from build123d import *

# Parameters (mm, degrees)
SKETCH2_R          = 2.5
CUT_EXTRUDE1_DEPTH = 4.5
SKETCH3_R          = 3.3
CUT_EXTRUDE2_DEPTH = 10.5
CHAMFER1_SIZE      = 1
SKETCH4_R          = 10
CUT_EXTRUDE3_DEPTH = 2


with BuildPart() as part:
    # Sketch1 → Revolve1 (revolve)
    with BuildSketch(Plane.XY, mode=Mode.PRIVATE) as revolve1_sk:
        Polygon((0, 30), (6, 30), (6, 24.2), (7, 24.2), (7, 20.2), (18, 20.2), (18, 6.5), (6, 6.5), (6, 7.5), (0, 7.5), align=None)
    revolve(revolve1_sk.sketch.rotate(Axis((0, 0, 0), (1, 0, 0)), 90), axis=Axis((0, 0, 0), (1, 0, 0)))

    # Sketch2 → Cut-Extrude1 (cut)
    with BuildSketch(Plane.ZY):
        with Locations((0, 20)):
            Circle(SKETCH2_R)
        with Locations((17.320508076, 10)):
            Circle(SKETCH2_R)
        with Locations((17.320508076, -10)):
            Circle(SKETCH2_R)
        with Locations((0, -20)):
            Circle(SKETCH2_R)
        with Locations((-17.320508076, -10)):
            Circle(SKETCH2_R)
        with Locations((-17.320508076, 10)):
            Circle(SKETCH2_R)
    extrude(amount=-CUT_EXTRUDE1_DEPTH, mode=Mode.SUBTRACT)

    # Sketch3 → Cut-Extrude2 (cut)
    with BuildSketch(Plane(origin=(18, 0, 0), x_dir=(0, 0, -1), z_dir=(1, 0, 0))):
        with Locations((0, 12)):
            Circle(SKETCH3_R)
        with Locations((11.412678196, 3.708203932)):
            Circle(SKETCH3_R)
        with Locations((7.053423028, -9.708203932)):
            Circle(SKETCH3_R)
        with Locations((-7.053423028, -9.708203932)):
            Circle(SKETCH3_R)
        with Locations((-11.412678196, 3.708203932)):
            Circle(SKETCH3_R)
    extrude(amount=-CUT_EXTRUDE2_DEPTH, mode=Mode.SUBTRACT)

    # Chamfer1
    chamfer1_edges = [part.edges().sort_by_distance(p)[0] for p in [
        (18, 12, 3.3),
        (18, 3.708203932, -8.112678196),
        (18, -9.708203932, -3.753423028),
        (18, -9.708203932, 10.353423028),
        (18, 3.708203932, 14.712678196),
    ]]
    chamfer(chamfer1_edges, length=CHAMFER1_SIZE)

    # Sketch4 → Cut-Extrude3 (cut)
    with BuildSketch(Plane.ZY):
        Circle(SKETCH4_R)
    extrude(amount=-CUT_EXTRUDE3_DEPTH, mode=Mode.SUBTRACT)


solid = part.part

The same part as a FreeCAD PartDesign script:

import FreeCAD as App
import Part
import Sketcher


def edges_at(feature, points):
    """Names of the edges that pass closest to the given points."""
    edges = feature.Shape.Edges
    near = lambda p: min(range(len(edges)), key=lambda i: edges[i].distToShape(Part.Vertex(*p))[0])
    return sorted({f"Edge{near(p) + 1}" for p in points})


def add_polygon(sketch, points):
    """Adds a closed chain of lines whose ends are joined by coincident constraints."""
    first, n = sketch.GeometryCount, len(points)
    for a, b in zip(points, points[1:] + points[:1]):
        sketch.addGeometry(Part.LineSegment(App.Vector(*a, 0), App.Vector(*b, 0)), False)
    for i in range(n):
        sketch.addConstraint(Sketcher.Constraint("Coincident", first + i, 2, first + (i + 1) % n, 1))

doc = App.newDocument("Part")
body = doc.addObject("PartDesign::Body", "Body")

# Sketch on XY plane
sketch1 = body.newObject("Sketcher::SketchObject", "Sketch")
sketch1.AttachmentSupport = (doc.getObject("XY_Plane"), [""])
sketch1.MapMode = "FlatFace"
add_polygon(sketch1, [(6, 30), (0, 30), (0, 7.5), (6, 7.5), (6, 6.5), (18, 6.5), (18, 20.2), (7, 20.2), (7, 24.2), (6, 24.2)])  # lines 0-9
sketch1.addConstraint([
    Sketcher.Constraint("Horizontal", 0),
    Sketcher.Constraint("Vertical", 1),
    Sketcher.Constraint("Horizontal", 2),
    Sketcher.Constraint("Vertical", 3),
    Sketcher.Constraint("Horizontal", 4),
    Sketcher.Constraint("Vertical", 5),
    Sketcher.Constraint("Horizontal", 6),
    Sketcher.Constraint("Vertical", 7),
    Sketcher.Constraint("Horizontal", 8),
    Sketcher.Constraint("Vertical", 9),
    Sketcher.Constraint("PointOnObject", 0, 2, -2),
    Sketcher.Constraint("Vertical", 3, 2, 8, 2),
    Sketcher.Constraint("Equal", 8, 3),
    Sketcher.Constraint("DistanceX", 0, 2, 0, 1, 6.0),
    Sketcher.Constraint("DistanceX", 4, 1, 4, 2, 12.0),
    Sketcher.Constraint("DistanceX", 6, 2, 6, 1, 11.0),
    Sketcher.Constraint("DistanceY", 7, 1, 7, 2, 4.0),
    Sketcher.Constraint("DistanceY", 1, 2, 1, 1, 22.5),
    Sketcher.Constraint("DistanceY", 5, 1, 5, 2, 13.7),
    Sketcher.Constraint("DistanceY", -1, 1, 0, 2, 30.0),
])
revolution = body.newObject("PartDesign::Revolution", "Revolution")
revolution.Profile = sketch1
revolution.ReferenceAxis = (sketch1, ["H_Axis"])
revolution.Angle = 360

# Sketch on YZ plane
sketch2 = body.newObject("Sketcher::SketchObject", "Sketch001")
sketch2.AttachmentSupport = (doc.getObject("YZ_Plane"), [""])
sketch2.MapMode = "FlatFace"
sketch2.addGeometry([
    Part.Circle(App.Vector(20, 0, 0), App.Vector(0, 0, 1), 2.5),  # 0
    Part.Circle(App.Vector(10, 17.3, 0), App.Vector(0, 0, 1), 2.5),  # 1
    Part.Circle(App.Vector(-10, 17.3, 0), App.Vector(0, 0, 1), 2.5),  # 2
    Part.Circle(App.Vector(-20, 0, 0), App.Vector(0, 0, 1), 2.5),  # 3
    Part.Circle(App.Vector(-10, -17.3, 0), App.Vector(0, 0, 1), 2.5),  # 4
    Part.Circle(App.Vector(10, -17.3, 0), App.Vector(0, 0, 1), 2.5),  # 5
], False)
sketch2.addConstraint([
    Sketcher.Constraint("Equal", 0, 1),
    Sketcher.Constraint("Equal", 1, 2),
    Sketcher.Constraint("Equal", 2, 3),
    Sketcher.Constraint("Equal", 3, 4),
    Sketcher.Constraint("Equal", 4, 5),
    Sketcher.Constraint("Symmetric", 0, 3, 3, 3, -1, 1),
    Sketcher.Constraint("Symmetric", 1, 3, 4, 3, -1, 1),
    Sketcher.Constraint("Symmetric", 2, 3, 5, 3, -1, 1),
    Sketcher.Constraint("Symmetric", 1, 3, 2, 3, -2),
    Sketcher.Constraint("PointOnObject", 0, 3, -1),
    Sketcher.Constraint("Diameter", 0, 5.0),
    Sketcher.Constraint("DistanceX", -1, 1, 0, 3, 20.0),
    Sketcher.Constraint("DistanceX", -1, 1, 1, 3, 10.0),
    Sketcher.Constraint("DistanceY", -1, 1, 1, 3, 17.320508),
])
pocket1 = body.newObject("PartDesign::Pocket", "Pocket")
pocket1.Profile = sketch2
pocket1.Length = 4.5
pocket1.Reversed = True

# Sketch on YZ plane
sketch3 = body.newObject("Sketcher::SketchObject", "Sketch002")
sketch3.AttachmentSupport = (doc.getObject("YZ_Plane"), [""])
sketch3.MapMode = "FlatFace"
sketch3.AttachmentOffset = App.Placement(App.Vector(0, 0, 18), App.Rotation())
sketch3.addGeometry([
    Part.Circle(App.Vector(12, 0, 0), App.Vector(0, 0, 1), 3.3),  # 0
    Part.Circle(App.Vector(3.7, -11.4, 0), App.Vector(0, 0, 1), 3.3),  # 1
    Part.Circle(App.Vector(-9.7, -7.1, 0), App.Vector(0, 0, 1), 3.3),  # 2
    Part.Circle(App.Vector(-9.7, 7.1, 0), App.Vector(0, 0, 1), 3.3),  # 3
    Part.Circle(App.Vector(3.7, 11.4, 0), App.Vector(0, 0, 1), 3.3),  # 4
], False)
sketch3.addConstraint([
    Sketcher.Constraint("Equal", 0, 1),
    Sketcher.Constraint("Equal", 1, 2),
    Sketcher.Constraint("Equal", 2, 3),
    Sketcher.Constraint("Equal", 3, 4),
    Sketcher.Constraint("Symmetric", 2, 3, 3, 3, -1),
    Sketcher.Constraint("Symmetric", 1, 3, 4, 3, -1),
    Sketcher.Constraint("PointOnObject", 0, 3, -1),
    Sketcher.Constraint("Diameter", 0, 6.6),
    Sketcher.Constraint("DistanceX", -1, 1, 0, 3, 12.0),
    Sketcher.Constraint("DistanceY", 1, 3, 3, 3, 18.466101),
    Sketcher.Constraint("DistanceY", 1, 3, -1, 1, 11.412678),
    Sketcher.Constraint("DistanceX", -1, 1, 1, 3, 3.708204),
    Sketcher.Constraint("DistanceX", 2, 3, -1, 1, 9.708204),
])
pocket2 = body.newObject("PartDesign::Pocket", "Pocket001")
pocket2.Profile = sketch3
pocket2.Length = 10.5
doc.recompute()

chamfer = body.newObject("PartDesign::Chamfer", "Chamfer")
chamfer.Base = (pocket2, edges_at(pocket2, [
    (18, 12, 3.3),
    (18, 3.708, -8.113),
    (18, -9.708, -3.753),
    (18, -9.708, 10.353),
    (18, 3.708, 14.713),
]))
chamfer.Size = 1

# Sketch on YZ plane
sketch4 = body.newObject("Sketcher::SketchObject", "Sketch003")
sketch4.AttachmentSupport = (doc.getObject("YZ_Plane"), [""])
sketch4.MapMode = "FlatFace"
sketch4.addGeometry(Part.Circle(App.Vector(0, 0, 0), App.Vector(0, 0, 1), 10), False)
sketch4.addConstraint([
    Sketcher.Constraint("Coincident", 0, 3, -1, 1),
    Sketcher.Constraint("Diameter", 0, 20.0),
])
pocket3 = body.newObject("PartDesign::Pocket", "Pocket002")
pocket3.Profile = sketch4
pocket3.Length = 2
pocket3.Reversed = True

doc.recompute()
